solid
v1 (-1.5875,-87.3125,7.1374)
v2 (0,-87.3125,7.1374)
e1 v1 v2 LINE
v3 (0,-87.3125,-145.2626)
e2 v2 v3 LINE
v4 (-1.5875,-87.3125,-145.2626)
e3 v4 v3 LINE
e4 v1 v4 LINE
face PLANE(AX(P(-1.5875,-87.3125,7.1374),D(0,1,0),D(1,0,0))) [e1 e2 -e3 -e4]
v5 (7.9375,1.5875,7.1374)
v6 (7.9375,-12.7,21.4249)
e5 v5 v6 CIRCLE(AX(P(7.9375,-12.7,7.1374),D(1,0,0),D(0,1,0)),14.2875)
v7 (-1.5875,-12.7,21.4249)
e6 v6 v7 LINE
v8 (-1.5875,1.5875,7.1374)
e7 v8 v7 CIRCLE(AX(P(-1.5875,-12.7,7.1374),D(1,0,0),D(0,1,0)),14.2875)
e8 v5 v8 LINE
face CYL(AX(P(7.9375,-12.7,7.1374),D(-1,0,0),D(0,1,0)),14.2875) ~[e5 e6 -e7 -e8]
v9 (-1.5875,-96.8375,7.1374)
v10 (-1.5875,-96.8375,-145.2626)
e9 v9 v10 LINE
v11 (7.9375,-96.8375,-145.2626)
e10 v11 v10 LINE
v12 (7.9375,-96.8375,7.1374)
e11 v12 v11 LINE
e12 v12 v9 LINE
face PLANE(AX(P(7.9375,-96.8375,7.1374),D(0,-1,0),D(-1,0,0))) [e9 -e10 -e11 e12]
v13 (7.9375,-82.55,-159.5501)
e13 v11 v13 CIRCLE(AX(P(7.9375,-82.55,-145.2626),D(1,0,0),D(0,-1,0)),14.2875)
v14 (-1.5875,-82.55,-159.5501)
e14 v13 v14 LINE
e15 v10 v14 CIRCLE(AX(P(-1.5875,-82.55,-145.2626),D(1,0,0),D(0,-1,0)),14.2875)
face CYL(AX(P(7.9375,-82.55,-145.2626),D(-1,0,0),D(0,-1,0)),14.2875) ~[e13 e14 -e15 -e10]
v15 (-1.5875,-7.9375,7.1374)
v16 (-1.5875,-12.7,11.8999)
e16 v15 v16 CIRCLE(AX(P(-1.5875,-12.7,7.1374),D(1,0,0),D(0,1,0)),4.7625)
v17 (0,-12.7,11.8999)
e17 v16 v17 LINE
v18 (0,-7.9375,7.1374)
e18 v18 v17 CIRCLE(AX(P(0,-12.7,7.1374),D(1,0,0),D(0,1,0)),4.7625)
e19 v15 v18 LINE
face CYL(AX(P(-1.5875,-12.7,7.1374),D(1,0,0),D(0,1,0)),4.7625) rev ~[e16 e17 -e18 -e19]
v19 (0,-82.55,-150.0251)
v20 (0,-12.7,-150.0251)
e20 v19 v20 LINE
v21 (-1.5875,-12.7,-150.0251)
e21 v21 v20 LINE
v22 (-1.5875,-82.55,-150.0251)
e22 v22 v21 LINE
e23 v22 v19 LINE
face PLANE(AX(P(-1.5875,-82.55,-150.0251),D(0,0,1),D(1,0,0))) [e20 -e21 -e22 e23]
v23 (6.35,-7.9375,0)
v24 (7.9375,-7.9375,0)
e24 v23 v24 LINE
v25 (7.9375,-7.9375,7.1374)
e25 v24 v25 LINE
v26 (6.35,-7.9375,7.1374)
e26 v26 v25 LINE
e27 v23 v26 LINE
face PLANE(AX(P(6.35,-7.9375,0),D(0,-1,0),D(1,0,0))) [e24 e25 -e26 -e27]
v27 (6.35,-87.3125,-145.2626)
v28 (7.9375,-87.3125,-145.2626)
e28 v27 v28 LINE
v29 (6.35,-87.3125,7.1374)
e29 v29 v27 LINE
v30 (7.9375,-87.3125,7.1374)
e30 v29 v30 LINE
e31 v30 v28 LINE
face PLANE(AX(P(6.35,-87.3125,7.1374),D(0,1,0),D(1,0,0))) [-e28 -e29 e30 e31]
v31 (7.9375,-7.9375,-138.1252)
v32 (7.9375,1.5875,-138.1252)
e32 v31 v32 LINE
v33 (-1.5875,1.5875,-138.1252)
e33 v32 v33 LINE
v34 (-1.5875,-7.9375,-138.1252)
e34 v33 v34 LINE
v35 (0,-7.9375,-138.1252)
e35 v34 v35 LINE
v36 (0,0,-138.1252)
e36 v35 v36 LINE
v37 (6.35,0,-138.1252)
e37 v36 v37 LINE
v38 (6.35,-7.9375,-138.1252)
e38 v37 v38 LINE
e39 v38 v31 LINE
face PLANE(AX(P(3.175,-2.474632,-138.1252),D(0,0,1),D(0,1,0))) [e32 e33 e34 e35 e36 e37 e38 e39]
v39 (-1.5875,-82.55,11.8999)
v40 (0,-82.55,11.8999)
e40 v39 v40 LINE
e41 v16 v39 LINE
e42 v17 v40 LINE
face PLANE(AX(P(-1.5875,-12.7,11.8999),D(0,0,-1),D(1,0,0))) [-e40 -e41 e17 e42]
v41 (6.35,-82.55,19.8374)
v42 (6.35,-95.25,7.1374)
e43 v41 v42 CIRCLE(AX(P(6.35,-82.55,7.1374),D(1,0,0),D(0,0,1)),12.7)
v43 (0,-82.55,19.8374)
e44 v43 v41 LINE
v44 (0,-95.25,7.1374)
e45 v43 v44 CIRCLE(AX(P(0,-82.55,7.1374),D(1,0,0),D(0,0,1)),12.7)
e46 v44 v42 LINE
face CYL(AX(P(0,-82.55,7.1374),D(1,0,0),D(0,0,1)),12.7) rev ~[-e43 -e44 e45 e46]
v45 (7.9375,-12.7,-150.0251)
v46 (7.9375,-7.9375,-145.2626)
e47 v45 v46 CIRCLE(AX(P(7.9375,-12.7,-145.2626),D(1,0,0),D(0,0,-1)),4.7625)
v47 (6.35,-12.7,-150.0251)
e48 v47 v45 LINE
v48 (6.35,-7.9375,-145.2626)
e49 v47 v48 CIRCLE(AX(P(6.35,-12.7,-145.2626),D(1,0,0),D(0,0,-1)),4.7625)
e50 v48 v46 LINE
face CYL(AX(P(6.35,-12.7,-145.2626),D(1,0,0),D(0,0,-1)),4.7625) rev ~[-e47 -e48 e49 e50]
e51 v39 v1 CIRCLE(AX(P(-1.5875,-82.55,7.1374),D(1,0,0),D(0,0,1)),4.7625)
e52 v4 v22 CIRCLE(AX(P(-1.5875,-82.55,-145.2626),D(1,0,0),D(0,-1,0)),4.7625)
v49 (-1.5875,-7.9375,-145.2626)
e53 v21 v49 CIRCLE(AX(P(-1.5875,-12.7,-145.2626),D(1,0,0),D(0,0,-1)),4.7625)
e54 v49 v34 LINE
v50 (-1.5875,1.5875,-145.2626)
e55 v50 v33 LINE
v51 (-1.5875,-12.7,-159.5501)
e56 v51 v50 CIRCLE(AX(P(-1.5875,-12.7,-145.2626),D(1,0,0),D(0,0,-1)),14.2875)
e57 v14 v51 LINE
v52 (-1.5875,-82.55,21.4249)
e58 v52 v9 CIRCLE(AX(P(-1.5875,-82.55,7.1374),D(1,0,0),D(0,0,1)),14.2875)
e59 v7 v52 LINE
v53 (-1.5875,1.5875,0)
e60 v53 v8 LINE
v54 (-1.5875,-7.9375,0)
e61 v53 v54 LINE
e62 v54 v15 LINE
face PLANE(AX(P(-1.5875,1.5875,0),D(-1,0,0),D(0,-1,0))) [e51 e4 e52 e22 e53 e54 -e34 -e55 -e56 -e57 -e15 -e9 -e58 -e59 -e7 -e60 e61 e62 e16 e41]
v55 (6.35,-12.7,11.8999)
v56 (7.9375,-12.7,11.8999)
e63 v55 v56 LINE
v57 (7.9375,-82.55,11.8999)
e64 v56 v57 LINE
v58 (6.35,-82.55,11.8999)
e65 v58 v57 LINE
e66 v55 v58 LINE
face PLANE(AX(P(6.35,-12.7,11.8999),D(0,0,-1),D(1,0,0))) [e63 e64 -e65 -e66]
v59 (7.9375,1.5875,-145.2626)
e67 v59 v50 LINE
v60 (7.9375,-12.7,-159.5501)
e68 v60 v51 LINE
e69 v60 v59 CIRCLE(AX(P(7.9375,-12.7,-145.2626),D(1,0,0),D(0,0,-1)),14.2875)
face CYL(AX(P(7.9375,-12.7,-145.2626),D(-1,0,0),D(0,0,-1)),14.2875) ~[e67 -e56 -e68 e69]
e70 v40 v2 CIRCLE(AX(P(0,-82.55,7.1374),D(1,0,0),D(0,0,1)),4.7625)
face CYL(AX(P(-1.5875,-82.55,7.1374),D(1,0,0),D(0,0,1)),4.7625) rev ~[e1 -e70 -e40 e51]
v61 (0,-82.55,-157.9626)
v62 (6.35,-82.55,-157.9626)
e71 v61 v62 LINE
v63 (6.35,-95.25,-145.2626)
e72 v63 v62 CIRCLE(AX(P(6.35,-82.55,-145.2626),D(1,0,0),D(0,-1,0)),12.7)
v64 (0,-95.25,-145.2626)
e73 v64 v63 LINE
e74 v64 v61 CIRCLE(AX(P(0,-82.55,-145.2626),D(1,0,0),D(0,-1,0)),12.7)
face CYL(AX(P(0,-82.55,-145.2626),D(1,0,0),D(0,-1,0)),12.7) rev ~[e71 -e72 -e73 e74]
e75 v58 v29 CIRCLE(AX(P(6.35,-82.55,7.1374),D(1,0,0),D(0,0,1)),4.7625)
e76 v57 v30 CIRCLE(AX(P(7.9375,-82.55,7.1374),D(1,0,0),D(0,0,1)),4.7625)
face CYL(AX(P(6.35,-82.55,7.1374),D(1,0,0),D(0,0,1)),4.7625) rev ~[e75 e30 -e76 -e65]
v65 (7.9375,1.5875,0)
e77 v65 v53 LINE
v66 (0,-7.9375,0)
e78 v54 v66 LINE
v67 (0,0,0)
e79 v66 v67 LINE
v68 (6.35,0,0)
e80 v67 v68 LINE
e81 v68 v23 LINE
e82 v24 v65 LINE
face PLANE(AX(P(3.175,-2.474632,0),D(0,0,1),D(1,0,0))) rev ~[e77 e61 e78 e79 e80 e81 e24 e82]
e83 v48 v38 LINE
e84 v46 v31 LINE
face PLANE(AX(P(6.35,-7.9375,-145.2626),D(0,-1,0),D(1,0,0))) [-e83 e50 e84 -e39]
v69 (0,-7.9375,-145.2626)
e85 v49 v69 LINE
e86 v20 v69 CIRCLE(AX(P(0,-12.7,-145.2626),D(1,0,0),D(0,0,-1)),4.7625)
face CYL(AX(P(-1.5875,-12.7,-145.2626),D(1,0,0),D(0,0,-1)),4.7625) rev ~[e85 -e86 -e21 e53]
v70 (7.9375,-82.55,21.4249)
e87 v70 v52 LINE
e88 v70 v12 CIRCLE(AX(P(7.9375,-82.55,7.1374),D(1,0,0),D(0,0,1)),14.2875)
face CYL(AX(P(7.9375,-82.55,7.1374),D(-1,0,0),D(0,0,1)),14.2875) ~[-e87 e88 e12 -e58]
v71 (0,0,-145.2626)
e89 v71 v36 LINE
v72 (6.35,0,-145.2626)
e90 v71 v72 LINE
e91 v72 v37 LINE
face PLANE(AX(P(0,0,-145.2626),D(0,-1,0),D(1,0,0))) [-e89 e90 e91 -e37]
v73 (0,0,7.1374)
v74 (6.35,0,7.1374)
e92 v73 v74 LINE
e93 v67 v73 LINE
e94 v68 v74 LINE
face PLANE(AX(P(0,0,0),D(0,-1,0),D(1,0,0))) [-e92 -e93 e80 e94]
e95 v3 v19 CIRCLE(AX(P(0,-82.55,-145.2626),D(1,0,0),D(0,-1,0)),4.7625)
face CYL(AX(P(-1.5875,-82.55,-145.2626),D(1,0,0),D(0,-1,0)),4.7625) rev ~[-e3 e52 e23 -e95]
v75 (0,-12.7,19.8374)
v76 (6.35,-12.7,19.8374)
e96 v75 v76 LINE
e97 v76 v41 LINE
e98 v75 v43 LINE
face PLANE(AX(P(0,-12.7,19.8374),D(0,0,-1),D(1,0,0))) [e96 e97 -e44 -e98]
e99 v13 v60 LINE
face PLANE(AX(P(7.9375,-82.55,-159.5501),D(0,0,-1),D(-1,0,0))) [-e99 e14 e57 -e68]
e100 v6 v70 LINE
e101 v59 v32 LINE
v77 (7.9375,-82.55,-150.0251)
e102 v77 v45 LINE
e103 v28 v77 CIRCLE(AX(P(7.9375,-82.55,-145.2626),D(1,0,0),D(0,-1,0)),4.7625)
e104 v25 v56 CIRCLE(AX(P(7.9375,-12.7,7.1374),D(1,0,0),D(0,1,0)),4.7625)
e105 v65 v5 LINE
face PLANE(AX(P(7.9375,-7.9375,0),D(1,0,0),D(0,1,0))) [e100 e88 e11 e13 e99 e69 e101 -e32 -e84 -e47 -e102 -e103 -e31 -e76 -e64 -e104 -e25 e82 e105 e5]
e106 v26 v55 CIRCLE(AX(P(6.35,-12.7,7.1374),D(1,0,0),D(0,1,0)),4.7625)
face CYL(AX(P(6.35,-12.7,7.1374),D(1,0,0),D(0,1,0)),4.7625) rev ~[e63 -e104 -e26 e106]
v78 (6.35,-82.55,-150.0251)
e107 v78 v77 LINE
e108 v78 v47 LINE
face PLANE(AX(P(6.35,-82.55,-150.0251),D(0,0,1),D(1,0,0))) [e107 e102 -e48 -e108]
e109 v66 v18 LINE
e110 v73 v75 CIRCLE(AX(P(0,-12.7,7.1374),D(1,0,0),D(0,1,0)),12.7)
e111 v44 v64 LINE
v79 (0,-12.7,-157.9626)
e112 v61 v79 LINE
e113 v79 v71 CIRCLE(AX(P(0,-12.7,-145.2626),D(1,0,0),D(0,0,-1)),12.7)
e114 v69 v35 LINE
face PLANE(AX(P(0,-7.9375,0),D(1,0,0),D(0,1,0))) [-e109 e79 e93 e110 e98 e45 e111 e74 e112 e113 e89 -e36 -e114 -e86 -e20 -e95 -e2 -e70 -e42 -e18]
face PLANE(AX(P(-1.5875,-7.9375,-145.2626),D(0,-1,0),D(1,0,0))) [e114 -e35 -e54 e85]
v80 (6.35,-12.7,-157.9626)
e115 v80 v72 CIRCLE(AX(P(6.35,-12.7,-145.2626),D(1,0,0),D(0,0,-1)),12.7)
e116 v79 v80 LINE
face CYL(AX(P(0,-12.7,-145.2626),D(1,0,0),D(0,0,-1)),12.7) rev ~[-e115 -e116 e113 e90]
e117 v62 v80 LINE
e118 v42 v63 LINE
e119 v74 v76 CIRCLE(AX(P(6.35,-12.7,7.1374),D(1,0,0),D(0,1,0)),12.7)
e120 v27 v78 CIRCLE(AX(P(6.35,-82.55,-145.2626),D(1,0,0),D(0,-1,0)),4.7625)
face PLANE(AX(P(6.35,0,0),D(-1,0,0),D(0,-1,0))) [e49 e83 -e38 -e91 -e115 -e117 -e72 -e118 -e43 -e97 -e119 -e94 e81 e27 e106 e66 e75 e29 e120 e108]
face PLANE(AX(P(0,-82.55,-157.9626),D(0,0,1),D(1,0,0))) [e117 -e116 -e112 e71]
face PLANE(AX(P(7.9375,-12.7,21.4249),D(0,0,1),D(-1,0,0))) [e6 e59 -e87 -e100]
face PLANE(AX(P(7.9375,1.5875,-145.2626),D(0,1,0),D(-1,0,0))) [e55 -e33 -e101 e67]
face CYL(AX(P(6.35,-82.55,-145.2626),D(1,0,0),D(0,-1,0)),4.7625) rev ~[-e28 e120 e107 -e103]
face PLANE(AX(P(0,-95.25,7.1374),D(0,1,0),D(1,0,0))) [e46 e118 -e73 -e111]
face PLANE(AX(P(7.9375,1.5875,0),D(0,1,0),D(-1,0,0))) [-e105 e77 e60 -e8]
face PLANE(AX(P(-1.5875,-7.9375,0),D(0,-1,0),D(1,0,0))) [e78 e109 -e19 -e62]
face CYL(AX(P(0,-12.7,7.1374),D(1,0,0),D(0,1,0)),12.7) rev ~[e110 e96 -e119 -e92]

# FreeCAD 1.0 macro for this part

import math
import FreeCAD as App
import Part
import Sketcher

V = App.Vector
Q = App.Units.Quantity


def add_polygon(sketch, points):
    """Adds a closed chain of lines whose ends are joined by coincident constraints."""
    first, n = sketch.GeometryCount, len(points)
    for a, b in zip(points, points[1:] + points[:1]):
        sketch.addGeometry(Part.LineSegment(App.Vector(*a, 0), App.Vector(*b, 0)), False)
    for i in range(n):
        sketch.addConstraint(Sketcher.Constraint("Coincident", first + i, 2, first + (i + 1) % n, 1))

doc = App.newDocument("Part")
params = doc.addObject("Spreadsheet::Sheet", "Params")
for row, (alias, value) in enumerate([
    ("sketch1_width", "0.25 in"),
    ("sketch1_width2", "0.0625 in"),
    ("sketch1_height", "0.3125 in"),
    ("sketch2_radius", "0.5 in"),
    ("sketch2_height", "6 in"),
    ("sketch2_width", "2.75 in"),
    ("sketch2_height2", "0.281 in"),
], start=1):
    params.set(f"A{row}", alias)
    params.set(f"B{row}", "=" + value)
    params.setAlias(f"B{row}", alias)

body = doc.addObject("PartDesign::Body", "Body")

sketch1 = body.newObject("Sketcher::SketchObject", "Sketch")
sketch1.AttachmentSupport = (doc.getObject("XY_Plane"), [""])
sketch1.MapMode = "FlatFace"
add_polygon(sketch1, [(0, 0), (6.35, 0), (6.35, -7.9375), (7.9375, -7.9375), (7.9375, 1.5875), (-1.5875, 1.5875), (-1.5875, -7.9375), (0, -7.9375)])
sketch1.addConstraint([
    Sketcher.Constraint("Horizontal", 0),
    Sketcher.Constraint("Vertical", 1),
    Sketcher.Constraint("Horizontal", 2),
    Sketcher.Constraint("Vertical", 3),
    Sketcher.Constraint("Horizontal", 4),
    Sketcher.Constraint("Vertical", 5),
    Sketcher.Constraint("Horizontal", 6),
    Sketcher.Constraint("Vertical", 7),
    Sketcher.Constraint("Coincident", 7, 2, -1, 1),
    Sketcher.Constraint("Horizontal", 2, 2, 5, 2),
    Sketcher.Constraint("Equal", 2, 6),
    Sketcher.Constraint("Equal", 4, 3),
    Sketcher.Constraint("DistanceX", 0, 1, 0, 2, Q("0.25 in")),
    Sketcher.Constraint("DistanceX", 2, 1, 2, 2, Q("0.0625 in")),
    Sketcher.Constraint("DistanceY", 1, 2, 1, 1, Q("0.3125 in")),
])
sketch1.setExpression("Constraints[20]", "Params.sketch1_width")
sketch1.setExpression("Constraints[21]", "Params.sketch1_width2")
sketch1.setExpression("Constraints[22]", "Params.sketch1_height")

sketch2 = body.newObject("Sketcher::SketchObject", "Sketch001")
sketch2.AttachmentSupport = (doc.getObject("YZ_Plane"), [""])
sketch2.MapMode = "FlatFace"
sketch2.addGeometry([
    Part.LineSegment(V(0, 0, 0), V(0, 7.1374, 0)),
    Part.ArcOfCircle(Part.Circle(V(-12.7, 7.1374, 0), V(0, 0, 1), 12.7), math.radians(0), math.radians(90)),
    Part.LineSegment(V(-12.7, 19.8374, 0), V(-82.55, 19.8374, 0)),
    Part.ArcOfCircle(Part.Circle(V(-82.55, 7.1374, 0), V(0, 0, 1), 12.7), math.radians(90), math.radians(180)),
    Part.LineSegment(V(-95.25, 7.1374, 0), V(-95.25, -145.2626, 0)),
    Part.ArcOfCircle(Part.Circle(V(-82.55, -145.2626, 0), V(0, 0, 1), 12.7), math.radians(180), math.radians(270)),
    Part.LineSegment(V(-82.55, -157.9626, 0), V(-12.7, -157.9626, 0)),
    Part.ArcOfCircle(Part.Circle(V(-12.7, -145.2626, 0), V(0, 0, 1), 12.7), math.radians(-90), math.radians(0)),
    Part.LineSegment(V(0, -145.2626, 0), V(0, -138.1252, 0)),
], False)
sketch2.addConstraint([
    Sketcher.Constraint("Tangent", 0, 2, 1, 1),
    Sketcher.Constraint("Tangent", 1, 2, 2, 1),
    Sketcher.Constraint("Tangent", 2, 2, 3, 1),
    Sketcher.Constraint("Tangent", 3, 2, 4, 1),
    Sketcher.Constraint("Tangent", 4, 2, 5, 1),
    Sketcher.Constraint("Tangent", 5, 2, 6, 1),
    Sketcher.Constraint("Tangent", 6, 2, 7, 1),
    Sketcher.Constraint("Tangent", 7, 2, 8, 1),
    Sketcher.Constraint("Vertical", 0),
    Sketcher.Constraint("Horizontal", 2),
    Sketcher.Constraint("Vertical", 4),
    Sketcher.Constraint("Horizontal", 6),
    Sketcher.Constraint("Vertical", 8),
    Sketcher.Constraint("Coincident", 0, 1, -1, 1),
    Sketcher.Constraint("Equal", 1, 3),
    Sketcher.Constraint("Equal", 3, 5),
    Sketcher.Constraint("Equal", 5, 7),
    Sketcher.Constraint("PointOnObject", 7, 2, -2),
    Sketcher.Constraint("Equal", 0, 8),
    Sketcher.Constraint("Radius", 1, Q("0.5 in")),
    Sketcher.Constraint("DistanceY", 4, 2, 4, 1, Q("6 in")),
    Sketcher.Constraint("DistanceX", 2, 2, 2, 1, Q("2.75 in")),
    Sketcher.Constraint("DistanceY", 0, 1, 0, 2, Q("0.281 in")),
])
sketch2.setExpression("Constraints[19]", "Params.sketch2_radius")
sketch2.setExpression("Constraints[20]", "Params.sketch2_height")
sketch2.setExpression("Constraints[21]", "Params.sketch2_width")
sketch2.setExpression("Constraints[22]", "Params.sketch2_height2")
doc.recompute()

additivepipe = body.newObject("PartDesign::AdditivePipe", "AdditivePipe")
additivepipe.Profile = sketch1
additivepipe.Spine = (sketch2, ["Edge1", "Edge2", "Edge3", "Edge4", "Edge5", "Edge6", "Edge7", "Edge8", "Edge9"])

doc.recompute()
